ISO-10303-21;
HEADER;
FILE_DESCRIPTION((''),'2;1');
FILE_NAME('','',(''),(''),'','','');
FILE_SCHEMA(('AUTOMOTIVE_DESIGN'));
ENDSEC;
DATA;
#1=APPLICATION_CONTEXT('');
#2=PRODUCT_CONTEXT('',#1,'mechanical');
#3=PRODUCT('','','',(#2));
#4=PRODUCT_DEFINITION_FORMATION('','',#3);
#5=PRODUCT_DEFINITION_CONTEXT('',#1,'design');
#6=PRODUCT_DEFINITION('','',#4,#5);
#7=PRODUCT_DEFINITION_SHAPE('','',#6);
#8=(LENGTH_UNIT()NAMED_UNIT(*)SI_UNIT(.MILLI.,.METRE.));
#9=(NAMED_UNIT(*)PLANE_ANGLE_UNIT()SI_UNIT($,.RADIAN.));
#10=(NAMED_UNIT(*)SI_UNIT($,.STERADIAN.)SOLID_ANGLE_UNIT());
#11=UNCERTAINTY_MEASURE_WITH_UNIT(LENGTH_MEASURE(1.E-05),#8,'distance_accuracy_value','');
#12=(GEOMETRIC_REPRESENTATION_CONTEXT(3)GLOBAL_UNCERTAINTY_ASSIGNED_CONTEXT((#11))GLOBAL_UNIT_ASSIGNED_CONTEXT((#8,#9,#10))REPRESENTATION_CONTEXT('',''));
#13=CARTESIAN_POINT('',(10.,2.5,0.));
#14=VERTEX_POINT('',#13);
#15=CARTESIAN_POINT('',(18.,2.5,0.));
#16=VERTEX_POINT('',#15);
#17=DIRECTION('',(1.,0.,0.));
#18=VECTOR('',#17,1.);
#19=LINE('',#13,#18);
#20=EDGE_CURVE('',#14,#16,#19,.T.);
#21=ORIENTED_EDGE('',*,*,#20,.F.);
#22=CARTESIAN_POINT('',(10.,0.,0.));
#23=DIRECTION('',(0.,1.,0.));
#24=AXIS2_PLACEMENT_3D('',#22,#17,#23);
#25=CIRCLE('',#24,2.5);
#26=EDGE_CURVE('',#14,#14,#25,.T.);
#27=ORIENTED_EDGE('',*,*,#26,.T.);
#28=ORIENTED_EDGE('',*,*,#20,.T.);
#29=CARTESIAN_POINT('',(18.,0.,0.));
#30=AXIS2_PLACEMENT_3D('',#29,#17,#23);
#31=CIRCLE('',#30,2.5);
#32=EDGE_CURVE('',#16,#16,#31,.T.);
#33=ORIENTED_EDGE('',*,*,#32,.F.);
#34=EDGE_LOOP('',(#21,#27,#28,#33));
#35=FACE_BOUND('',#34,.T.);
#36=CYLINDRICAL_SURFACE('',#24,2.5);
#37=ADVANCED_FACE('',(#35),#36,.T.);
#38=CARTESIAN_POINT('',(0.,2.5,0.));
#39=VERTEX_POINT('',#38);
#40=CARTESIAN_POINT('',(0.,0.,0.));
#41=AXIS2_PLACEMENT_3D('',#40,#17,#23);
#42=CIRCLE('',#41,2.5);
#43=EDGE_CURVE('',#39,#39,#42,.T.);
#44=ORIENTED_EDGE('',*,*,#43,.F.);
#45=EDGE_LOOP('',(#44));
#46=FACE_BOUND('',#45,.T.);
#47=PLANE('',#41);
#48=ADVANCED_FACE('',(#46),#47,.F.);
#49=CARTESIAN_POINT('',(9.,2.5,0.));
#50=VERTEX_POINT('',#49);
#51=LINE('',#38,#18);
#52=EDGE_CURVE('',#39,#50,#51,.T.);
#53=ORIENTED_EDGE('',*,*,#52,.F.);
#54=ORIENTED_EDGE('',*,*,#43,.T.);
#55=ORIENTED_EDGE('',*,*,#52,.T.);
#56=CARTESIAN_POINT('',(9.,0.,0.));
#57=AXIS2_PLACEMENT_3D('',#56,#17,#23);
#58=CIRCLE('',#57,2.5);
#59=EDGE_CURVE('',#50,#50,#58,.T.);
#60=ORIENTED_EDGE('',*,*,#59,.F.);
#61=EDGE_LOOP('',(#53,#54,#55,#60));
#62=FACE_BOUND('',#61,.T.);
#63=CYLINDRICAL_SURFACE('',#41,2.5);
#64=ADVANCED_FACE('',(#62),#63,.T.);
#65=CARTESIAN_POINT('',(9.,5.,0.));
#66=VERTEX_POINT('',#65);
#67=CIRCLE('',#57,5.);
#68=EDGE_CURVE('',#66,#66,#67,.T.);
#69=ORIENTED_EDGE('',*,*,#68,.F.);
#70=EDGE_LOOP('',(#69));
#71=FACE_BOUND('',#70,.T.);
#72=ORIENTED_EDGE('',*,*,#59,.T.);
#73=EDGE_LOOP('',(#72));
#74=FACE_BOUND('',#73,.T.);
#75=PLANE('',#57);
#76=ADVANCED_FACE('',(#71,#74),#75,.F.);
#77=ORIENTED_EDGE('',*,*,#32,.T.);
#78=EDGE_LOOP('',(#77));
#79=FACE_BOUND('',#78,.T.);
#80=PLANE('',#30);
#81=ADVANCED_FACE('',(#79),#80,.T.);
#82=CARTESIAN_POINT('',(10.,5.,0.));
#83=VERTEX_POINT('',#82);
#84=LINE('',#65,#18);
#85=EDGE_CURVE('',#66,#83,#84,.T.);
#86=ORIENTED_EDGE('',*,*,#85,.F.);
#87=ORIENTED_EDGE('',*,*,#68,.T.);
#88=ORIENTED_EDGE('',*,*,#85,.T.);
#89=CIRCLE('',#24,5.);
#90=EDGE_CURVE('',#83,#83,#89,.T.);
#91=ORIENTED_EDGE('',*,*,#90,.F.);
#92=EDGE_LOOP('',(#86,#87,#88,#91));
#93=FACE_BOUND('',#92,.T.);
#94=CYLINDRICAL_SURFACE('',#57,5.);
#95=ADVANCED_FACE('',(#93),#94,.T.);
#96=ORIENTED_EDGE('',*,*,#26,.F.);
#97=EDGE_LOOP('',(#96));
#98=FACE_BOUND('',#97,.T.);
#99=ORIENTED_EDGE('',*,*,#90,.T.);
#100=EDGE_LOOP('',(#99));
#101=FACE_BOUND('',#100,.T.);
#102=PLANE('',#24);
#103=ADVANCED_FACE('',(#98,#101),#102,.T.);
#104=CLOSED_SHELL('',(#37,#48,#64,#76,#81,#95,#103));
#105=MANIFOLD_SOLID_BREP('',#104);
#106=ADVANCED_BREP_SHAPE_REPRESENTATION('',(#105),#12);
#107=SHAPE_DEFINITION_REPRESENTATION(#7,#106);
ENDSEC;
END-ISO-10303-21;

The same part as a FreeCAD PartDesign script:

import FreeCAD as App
import Part
import Sketcher

V = App.Vector


def add_polygon(sketch, points):
    """Adds a closed chain of lines whose ends are joined by coincident constraints."""
    first, n = sketch.GeometryCount, len(points)
    for a, b in zip(points, points[1:] + points[:1]):
        sketch.addGeometry(Part.LineSegment(App.Vector(*a, 0), App.Vector(*b, 0)), False)
    for i in range(n):
        sketch.addConstraint(Sketcher.Constraint("Coincident", first + i, 2, first + (i + 1) % n, 1))

doc = App.newDocument("Part")
body = doc.addObject("PartDesign::Body", "Body")

# Sketch on XY plane
sketch1 = body.newObject("Sketcher::SketchObject", "Sketch")
sketch1.AttachmentSupport = (doc.getObject("XY_Plane"), [""])
sketch1.MapMode = "FlatFace"
add_polygon(sketch1, [(0, 2.5), (0, 0), (18, 0), (18, 2.5), (10, 2.5), (10, 5), (9, 5), (9, 2.5)])  # lines 0-7
sketch1.addConstraint([
    Sketcher.Constraint("Vertical", 0),
    Sketcher.Constraint("Horizontal", 1),
    Sketcher.Constraint("Vertical", 2),
    Sketcher.Constraint("Horizontal", 3),
    Sketcher.Constraint("Vertical", 4),
    Sketcher.Constraint("Horizontal", 5),
    Sketcher.Constraint("Vertical", 6),
    Sketcher.Constraint("Horizontal", 7),
    Sketcher.Constraint("Coincident", 0, 2, -1, 1),
    Sketcher.Constraint("Horizontal", 3, 2, 6, 2),
    Sketcher.Constraint("Equal", 2, 4),
    Sketcher.Constraint("DistanceX", 1, 1, 1, 2, 18.0),
    Sketcher.Constraint("DistanceX", 5, 2, 5, 1, 1.0),
    Sketcher.Constraint("DistanceX", 7, 2, 7, 1, 9.0),
    Sketcher.Constraint("DistanceY", -1, 1, 4, 2, 5.0),
])
revolution = body.newObject("PartDesign::Revolution", "Revolution")
revolution.Profile = sketch1
revolution.ReferenceAxis = (sketch1, ["H_Axis"])
revolution.Angle = 360

doc.recompute()
